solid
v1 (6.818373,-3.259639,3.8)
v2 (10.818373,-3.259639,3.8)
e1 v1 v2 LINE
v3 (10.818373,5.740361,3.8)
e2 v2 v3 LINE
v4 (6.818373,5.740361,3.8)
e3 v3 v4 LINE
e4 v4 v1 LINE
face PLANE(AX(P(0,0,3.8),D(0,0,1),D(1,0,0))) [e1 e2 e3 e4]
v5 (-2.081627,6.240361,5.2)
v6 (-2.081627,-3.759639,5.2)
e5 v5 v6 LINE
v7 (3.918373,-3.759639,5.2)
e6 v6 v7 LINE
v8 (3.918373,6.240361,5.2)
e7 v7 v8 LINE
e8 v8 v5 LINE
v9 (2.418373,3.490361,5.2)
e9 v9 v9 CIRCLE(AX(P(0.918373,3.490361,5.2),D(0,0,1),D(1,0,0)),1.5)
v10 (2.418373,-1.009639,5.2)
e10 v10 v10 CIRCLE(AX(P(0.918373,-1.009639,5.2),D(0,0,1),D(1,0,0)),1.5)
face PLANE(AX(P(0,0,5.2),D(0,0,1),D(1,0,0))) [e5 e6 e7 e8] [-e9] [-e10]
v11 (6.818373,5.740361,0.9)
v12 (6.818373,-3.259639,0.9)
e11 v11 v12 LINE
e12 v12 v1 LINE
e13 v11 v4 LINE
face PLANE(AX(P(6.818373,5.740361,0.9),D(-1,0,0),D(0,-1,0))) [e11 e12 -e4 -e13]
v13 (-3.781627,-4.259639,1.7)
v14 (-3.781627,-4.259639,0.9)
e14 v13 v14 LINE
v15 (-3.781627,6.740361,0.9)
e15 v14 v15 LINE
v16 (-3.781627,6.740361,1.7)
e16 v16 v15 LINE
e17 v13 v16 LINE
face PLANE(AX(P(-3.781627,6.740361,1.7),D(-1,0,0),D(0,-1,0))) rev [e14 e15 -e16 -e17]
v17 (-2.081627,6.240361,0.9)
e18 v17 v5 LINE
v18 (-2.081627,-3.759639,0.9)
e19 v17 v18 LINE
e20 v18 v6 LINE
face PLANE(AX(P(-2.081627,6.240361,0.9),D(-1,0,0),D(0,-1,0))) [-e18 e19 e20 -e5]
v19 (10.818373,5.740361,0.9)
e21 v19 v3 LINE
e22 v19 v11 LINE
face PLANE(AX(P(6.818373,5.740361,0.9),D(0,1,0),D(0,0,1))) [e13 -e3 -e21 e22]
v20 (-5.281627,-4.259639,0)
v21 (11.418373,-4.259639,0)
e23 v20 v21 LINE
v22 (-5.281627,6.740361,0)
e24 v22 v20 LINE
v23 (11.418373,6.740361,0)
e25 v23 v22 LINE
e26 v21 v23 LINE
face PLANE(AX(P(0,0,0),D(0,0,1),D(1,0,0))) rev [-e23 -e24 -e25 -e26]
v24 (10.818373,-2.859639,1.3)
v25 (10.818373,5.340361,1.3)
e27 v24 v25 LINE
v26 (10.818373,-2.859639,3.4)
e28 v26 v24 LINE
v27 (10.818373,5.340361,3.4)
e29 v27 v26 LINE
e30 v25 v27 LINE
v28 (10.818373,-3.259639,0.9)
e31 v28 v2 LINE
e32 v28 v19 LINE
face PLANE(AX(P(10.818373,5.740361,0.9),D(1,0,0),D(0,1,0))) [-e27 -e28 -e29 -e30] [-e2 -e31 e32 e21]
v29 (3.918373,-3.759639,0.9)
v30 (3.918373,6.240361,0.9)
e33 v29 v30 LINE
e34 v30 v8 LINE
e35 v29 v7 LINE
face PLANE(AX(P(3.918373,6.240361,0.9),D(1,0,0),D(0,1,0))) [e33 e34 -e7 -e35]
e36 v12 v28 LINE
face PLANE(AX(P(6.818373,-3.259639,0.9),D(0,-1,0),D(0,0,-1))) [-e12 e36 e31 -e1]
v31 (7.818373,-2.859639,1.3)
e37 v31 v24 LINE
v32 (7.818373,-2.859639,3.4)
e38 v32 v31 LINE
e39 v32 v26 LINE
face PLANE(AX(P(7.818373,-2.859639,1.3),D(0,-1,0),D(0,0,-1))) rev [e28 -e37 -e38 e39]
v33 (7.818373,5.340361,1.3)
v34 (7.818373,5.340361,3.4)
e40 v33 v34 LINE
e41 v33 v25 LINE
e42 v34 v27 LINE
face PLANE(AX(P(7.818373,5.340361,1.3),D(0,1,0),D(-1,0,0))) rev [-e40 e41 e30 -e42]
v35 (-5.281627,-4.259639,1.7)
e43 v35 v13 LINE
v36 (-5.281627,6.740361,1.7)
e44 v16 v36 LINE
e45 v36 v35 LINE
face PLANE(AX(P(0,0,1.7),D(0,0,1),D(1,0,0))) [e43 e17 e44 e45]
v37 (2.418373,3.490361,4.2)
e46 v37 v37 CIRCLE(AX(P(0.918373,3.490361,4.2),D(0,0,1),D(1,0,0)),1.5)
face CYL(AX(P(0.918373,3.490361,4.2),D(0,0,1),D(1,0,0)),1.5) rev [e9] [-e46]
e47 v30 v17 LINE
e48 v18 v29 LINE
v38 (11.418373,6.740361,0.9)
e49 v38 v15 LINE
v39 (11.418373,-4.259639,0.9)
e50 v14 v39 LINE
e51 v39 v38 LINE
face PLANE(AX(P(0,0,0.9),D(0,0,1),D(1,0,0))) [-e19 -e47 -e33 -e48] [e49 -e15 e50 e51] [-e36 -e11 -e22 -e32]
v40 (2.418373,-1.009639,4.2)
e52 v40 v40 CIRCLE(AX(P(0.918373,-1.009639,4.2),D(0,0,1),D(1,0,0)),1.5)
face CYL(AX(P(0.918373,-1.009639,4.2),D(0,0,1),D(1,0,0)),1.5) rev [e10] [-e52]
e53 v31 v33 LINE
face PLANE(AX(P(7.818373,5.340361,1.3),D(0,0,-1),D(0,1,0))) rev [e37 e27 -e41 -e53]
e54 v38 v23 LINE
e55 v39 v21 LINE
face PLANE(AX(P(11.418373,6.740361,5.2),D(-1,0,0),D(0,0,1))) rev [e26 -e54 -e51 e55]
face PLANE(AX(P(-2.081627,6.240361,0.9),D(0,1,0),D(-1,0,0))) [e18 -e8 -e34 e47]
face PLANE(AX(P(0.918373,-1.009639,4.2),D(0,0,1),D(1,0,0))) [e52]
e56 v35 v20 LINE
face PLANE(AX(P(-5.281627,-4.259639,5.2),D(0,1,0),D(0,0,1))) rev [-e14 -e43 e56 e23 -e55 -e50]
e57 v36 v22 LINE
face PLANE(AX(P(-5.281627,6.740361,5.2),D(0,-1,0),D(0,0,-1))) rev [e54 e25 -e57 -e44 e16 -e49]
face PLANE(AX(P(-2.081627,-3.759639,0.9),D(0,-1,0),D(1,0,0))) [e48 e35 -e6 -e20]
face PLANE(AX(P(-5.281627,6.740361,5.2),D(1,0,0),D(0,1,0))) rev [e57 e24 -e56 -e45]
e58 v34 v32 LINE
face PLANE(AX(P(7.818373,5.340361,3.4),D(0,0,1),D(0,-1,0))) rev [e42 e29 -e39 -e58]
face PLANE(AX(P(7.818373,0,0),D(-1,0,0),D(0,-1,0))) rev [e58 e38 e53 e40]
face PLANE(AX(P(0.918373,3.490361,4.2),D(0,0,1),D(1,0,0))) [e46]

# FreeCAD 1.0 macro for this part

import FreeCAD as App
import Part
import Sketcher

V = App.Vector
Q = App.Units.Quantity

doc = App.newDocument("Part")
body = doc.addObject("PartDesign::Body", "Body")

# Sketch on XY plane
sketch1 = body.newObject("Sketcher::SketchObject", "Sketch")
sketch1.AttachmentSupport = (doc.getObject("XY_Plane"), [""])
sketch1.MapMode = "FlatFace"
sketch1.addGeometry([
    Part.LineSegment(V(-5.281627, 6.740361, 0), V(-5.281627, -4.259639, 0)),
    Part.LineSegment(V(-5.281627, -4.259639, 0), V(11.418373, -4.259639, 0)),
    Part.LineSegment(V(11.418373, -4.259639, 0), V(11.418373, 6.740361, 0)),
    Part.LineSegment(V(11.418373, 6.740361, 0), V(-5.281627, 6.740361, 0)),
], False)
sketch1.addConstraint([
    Sketcher.Constraint("Coincident", 0, 2, 1, 1),
    Sketcher.Constraint("Coincident", 1, 2, 2, 1),
    Sketcher.Constraint("Coincident", 2, 2, 3, 1),
    Sketcher.Constraint("Coincident", 3, 2, 0, 1),
    Sketcher.Constraint("Vertical", 0),
    Sketcher.Constraint("Horizontal", 1),
    Sketcher.Constraint("Vertical", 2),
    Sketcher.Constraint("Horizontal", 3),
    Sketcher.Constraint("DistanceY", 0, 2, 0, 1, Q("11 mm")),
    Sketcher.Constraint("DistanceX", 1, 1, 1, 2, Q("16.7 mm")),
    Sketcher.Constraint("DistanceY", 0, 2, -1, 1, Q("4.259639 mm")),
    Sketcher.Constraint("DistanceX", 0, 2, -1, 1, Q("5.281627 mm")),
])
pad1 = body.newObject("PartDesign::Pad", "Pad")
pad1.Profile = sketch1
pad1.Length = 5.2

# Sketch on XY plane
sketch2 = body.newObject("Sketcher::SketchObject", "Sketch001")
sketch2.AttachmentSupport = (doc.getObject("XY_Plane"), [""])
sketch2.MapMode = "FlatFace"
sketch2.AttachmentOffset = App.Placement(V(0, 0, 5.2), App.Rotation())
sketch2.addGeometry([
    Part.LineSegment(V(-5.281627, 6.740361, 0), V(-5.281627, -4.259639, 0)),  # 0
    Part.LineSegment(V(-5.281627, -4.259639, 0), V(11.418373, -4.259639, 0)),  # 1
    Part.LineSegment(V(11.418373, -4.259639, 0), V(11.418373, 6.740361, 0)),  # 2
    Part.LineSegment(V(11.418373, 6.740361, 0), V(-5.281627, 6.740361, 0)),  # 3
    Part.LineSegment(V(3.918373, -3.759639, 0), V(-2.081627, -3.759639, 0)),  # 4
    Part.LineSegment(V(-2.081627, -3.759639, 0), V(-2.081627, 6.240361, 0)),  # 5
    Part.LineSegment(V(-2.081627, 6.240361, 0), V(3.918373, 6.240361, 0)),  # 6
    Part.LineSegment(V(3.918373, 6.240361, 0), V(3.918373, -3.759639, 0)),  # 7
    Part.LineSegment(V(10.818373, -3.259639, 0), V(6.818373, -3.259639, 0)),  # 8
    Part.LineSegment(V(6.818373, -3.259639, 0), V(6.818373, 5.740361, 0)),  # 9
    Part.LineSegment(V(6.818373, 5.740361, 0), V(10.818373, 5.740361, 0)),  # 10
    Part.LineSegment(V(10.818373, 5.740361, 0), V(10.818373, -3.259639, 0)),  # 11
], False)
sketch2.addConstraint([
    Sketcher.Constraint("Coincident", 0, 2, 1, 1),
    Sketcher.Constraint("Coincident", 1, 2, 2, 1),
    Sketcher.Constraint("Coincident", 2, 2, 3, 1),
    Sketcher.Constraint("Coincident", 3, 2, 0, 1),
    Sketcher.Constraint("Coincident", 4, 2, 5, 1),
    Sketcher.Constraint("Coincident", 5, 2, 6, 1),
    Sketcher.Constraint("Coincident", 6, 2, 7, 1),
    Sketcher.Constraint("Coincident", 7, 2, 4, 1),
    Sketcher.Constraint("Coincident", 8, 2, 9, 1),
    Sketcher.Constraint("Coincident", 9, 2, 10, 1),
    Sketcher.Constraint("Coincident", 10, 2, 11, 1),
    Sketcher.Constraint("Coincident", 11, 2, 8, 1),
    Sketcher.Constraint("Vertical", 0),
    Sketcher.Constraint("Horizontal", 1),
    Sketcher.Constraint("Vertical", 2),
    Sketcher.Constraint("Horizontal", 3),
    Sketcher.Constraint("Horizontal", 4),
    Sketcher.Constraint("Vertical", 5),
    Sketcher.Constraint("Horizontal", 6),
    Sketcher.Constraint("Vertical", 7),
    Sketcher.Constraint("Horizontal", 8),
    Sketcher.Constraint("Vertical", 9),
    Sketcher.Constraint("Horizontal", 10),
    Sketcher.Constraint("Vertical", 11),
    Sketcher.Constraint("DistanceX", 4, 2, 4, 1, Q("6 mm")),
    Sketcher.Constraint("DistanceX", 8, 2, 8, 1, Q("4 mm")),
    Sketcher.Constraint("DistanceY", 0, 2, 0, 1, Q("11 mm")),
    Sketcher.Constraint("DistanceY", 5, 1, 5, 2, Q("10 mm")),
    Sketcher.Constraint("DistanceY", 9, 1, 9, 2, Q("9 mm")),
    Sketcher.Constraint("DistanceX", 1, 1, 1, 2, Q("16.7 mm")),
    Sketcher.Constraint("DistanceY", 1, 2, 8, 2, Q("1 mm")),
    Sketcher.Constraint("DistanceX", 0, 2, 4, 2, Q("3.2 mm")),
    Sketcher.Constraint("DistanceY", 0, 2, 4, 2, Q("0.5 mm")),
    Sketcher.Constraint("DistanceX", 7, 2, 8, 2, Q("2.9 mm")),
    Sketcher.Constraint("DistanceY", 0, 2, -1, 1, Q("4.259639 mm")),
    Sketcher.Constraint("DistanceX", 0, 2, -1, 1, Q("5.281627 mm")),
])
pocket1 = body.newObject("PartDesign::Pocket", "Pocket")
pocket1.Profile = sketch2
pocket1.Length = 4.3

# Sketch on XY plane
sketch3 = body.newObject("Sketcher::SketchObject", "Sketch002")
sketch3.AttachmentSupport = (doc.getObject("XY_Plane"), [""])
sketch3.MapMode = "FlatFace"
sketch3.AttachmentOffset = App.Placement(V(0, 0, 5.2), App.Rotation())
sketch3.addGeometry([
    Part.LineSegment(V(6.818373, 5.740361, 0), V(6.818373, -3.259639, 0)),
    Part.LineSegment(V(6.818373, -3.259639, 0), V(10.818373, -3.259639, 0)),
    Part.LineSegment(V(10.818373, -3.259639, 0), V(10.818373, 5.740361, 0)),
    Part.LineSegment(V(10.818373, 5.740361, 0), V(6.818373, 5.740361, 0)),
], False)
sketch3.addConstraint([
    Sketcher.Constraint("Coincident", 0, 2, 1, 1),
    Sketcher.Constraint("Coincident", 1, 2, 2, 1),
    Sketcher.Constraint("Coincident", 2, 2, 3, 1),
    Sketcher.Constraint("Coincident", 3, 2, 0, 1),
    Sketcher.Constraint("Vertical", 0),
    Sketcher.Constraint("Horizontal", 1),
    Sketcher.Constraint("Vertical", 2),
    Sketcher.Constraint("Horizontal", 3),
    Sketcher.Constraint("DistanceX", 1, 1, 1, 2, Q("4 mm")),
    Sketcher.Constraint("DistanceY", 0, 2, 0, 1, Q("9 mm")),
    Sketcher.Constraint("DistanceY", 0, 2, -1, 1, Q("3.259639 mm")),
    Sketcher.Constraint("DistanceX", -1, 1, 0, 2, Q("6.818373 mm")),
])
pocket2 = body.newObject("PartDesign::Pocket", "Pocket001")
pocket2.Profile = sketch3
pocket2.Length = 1.4

# Sketch on XY plane
sketch4 = body.newObject("Sketcher::SketchObject", "Sketch003")
sketch4.AttachmentSupport = (doc.getObject("XY_Plane"), [""])
sketch4.MapMode = "FlatFace"
sketch4.AttachmentOffset = App.Placement(V(0, 0, 5.2), App.Rotation())
sketch4.addGeometry([
    Part.Circle(V(0.918373, 3.490361, 0), V(0, 0, 1), 1.5),
    Part.Circle(V(0.918373, -1.009639, 0), V(0, 0, 1), 1.5),
], False)
sketch4.addConstraint([
    Sketcher.Constraint("Equal", 0, 1),
    Sketcher.Constraint("Vertical", 0, 3, 1, 3),
    Sketcher.Constraint("Diameter", 0, Q("3 mm")),
    Sketcher.Constraint("DistanceY", 1, 3, 0, 3, Q("4.5 mm")),
    Sketcher.Constraint("DistanceY", -1, 1, 0, 3, Q("3.490361 mm")),
    Sketcher.Constraint("DistanceX", -1, 1, 0, 3, Q("0.918373 mm")),
])
pocket3 = body.newObject("PartDesign::Pocket", "Pocket002")
pocket3.Profile = sketch4
pocket3.Length = 1

# Sketch on YZ plane
sketch5 = body.newObject("Sketcher::SketchObject", "Sketch004")
sketch5.AttachmentSupport = (doc.getObject("YZ_Plane"), [""])
sketch5.MapMode = "FlatFace"
sketch5.AttachmentOffset = App.Placement(V(0, 0, 10.818373), App.Rotation())
sketch5.addGeometry([
    Part.LineSegment(V(5.340361, 3.4, 0), V(-2.859639, 3.4, 0)),
    Part.LineSegment(V(-2.859639, 3.4, 0), V(-2.859639, 1.3, 0)),
    Part.LineSegment(V(-2.859639, 1.3, 0), V(5.340361, 1.3, 0)),
    Part.LineSegment(V(5.340361, 1.3, 0), V(5.340361, 3.4, 0)),
], False)
sketch5.addConstraint([
    Sketcher.Constraint("Coincident", 0, 2, 1, 1),
    Sketcher.Constraint("Coincident", 1, 2, 2, 1),
    Sketcher.Constraint("Coincident", 2, 2, 3, 1),
    Sketcher.Constraint("Coincident", 3, 2, 0, 1),
    Sketcher.Constraint("Horizontal", 0),
    Sketcher.Constraint("Vertical", 1),
    Sketcher.Constraint("Horizontal", 2),
    Sketcher.Constraint("Vertical", 3),
    Sketcher.Constraint("DistanceX", 0, 2, 0, 1, Q("8.2 mm")),
    Sketcher.Constraint("DistanceY", 1, 2, 1, 1, Q("2.1 mm")),
    Sketcher.Constraint("DistanceY", -1, 1, 0, 2, Q("3.4 mm")),
    Sketcher.Constraint("DistanceX", 0, 2, -1, 1, Q("2.859639 mm")),
])
pocket4 = body.newObject("PartDesign::Pocket", "Pocket003")
pocket4.Profile = sketch5
pocket4.Length = 3

# Sketch on XY plane
sketch6 = body.newObject("Sketcher::SketchObject", "Sketch005")
sketch6.AttachmentSupport = (doc.getObject("XY_Plane"), [""])
sketch6.MapMode = "FlatFace"
sketch6.AttachmentOffset = App.Placement(V(0, 0, 0.9), App.Rotation())
sketch6.addGeometry([
    Part.LineSegment(V(-5.281627, 6.740361, 0), V(-5.281627, -4.259639, 0)),
    Part.LineSegment(V(-5.281627, -4.259639, 0), V(-3.781627, -4.259639, 0)),
    Part.LineSegment(V(-3.781627, -4.259639, 0), V(-3.781627, 6.740361, 0)),
    Part.LineSegment(V(-3.781627, 6.740361, 0), V(-5.281627, 6.740361, 0)),
], False)
sketch6.addConstraint([
    Sketcher.Constraint("Coincident", 0, 2, 1, 1),
    Sketcher.Constraint("Coincident", 1, 2, 2, 1),
    Sketcher.Constraint("Coincident", 2, 2, 3, 1),
    Sketcher.Constraint("Coincident", 3, 2, 0, 1),
    Sketcher.Constraint("Vertical", 0),
    Sketcher.Constraint("Horizontal", 1),
    Sketcher.Constraint("Vertical", 2),
    Sketcher.Constraint("Horizontal", 3),
    Sketcher.Constraint("DistanceY", 0, 2, 0, 1, Q("11 mm")),
    Sketcher.Constraint("DistanceX", 1, 1, 1, 2, Q("1.5 mm")),
    Sketcher.Constraint("DistanceY", 0, 2, -1, 1, Q("4.259639 mm")),
    Sketcher.Constraint("DistanceX", 0, 2, -1, 1, Q("5.281627 mm")),
])
pad2 = body.newObject("PartDesign::Pad", "Pad001")
pad2.Profile = sketch6
pad2.Length = 0.8

doc.recompute()
